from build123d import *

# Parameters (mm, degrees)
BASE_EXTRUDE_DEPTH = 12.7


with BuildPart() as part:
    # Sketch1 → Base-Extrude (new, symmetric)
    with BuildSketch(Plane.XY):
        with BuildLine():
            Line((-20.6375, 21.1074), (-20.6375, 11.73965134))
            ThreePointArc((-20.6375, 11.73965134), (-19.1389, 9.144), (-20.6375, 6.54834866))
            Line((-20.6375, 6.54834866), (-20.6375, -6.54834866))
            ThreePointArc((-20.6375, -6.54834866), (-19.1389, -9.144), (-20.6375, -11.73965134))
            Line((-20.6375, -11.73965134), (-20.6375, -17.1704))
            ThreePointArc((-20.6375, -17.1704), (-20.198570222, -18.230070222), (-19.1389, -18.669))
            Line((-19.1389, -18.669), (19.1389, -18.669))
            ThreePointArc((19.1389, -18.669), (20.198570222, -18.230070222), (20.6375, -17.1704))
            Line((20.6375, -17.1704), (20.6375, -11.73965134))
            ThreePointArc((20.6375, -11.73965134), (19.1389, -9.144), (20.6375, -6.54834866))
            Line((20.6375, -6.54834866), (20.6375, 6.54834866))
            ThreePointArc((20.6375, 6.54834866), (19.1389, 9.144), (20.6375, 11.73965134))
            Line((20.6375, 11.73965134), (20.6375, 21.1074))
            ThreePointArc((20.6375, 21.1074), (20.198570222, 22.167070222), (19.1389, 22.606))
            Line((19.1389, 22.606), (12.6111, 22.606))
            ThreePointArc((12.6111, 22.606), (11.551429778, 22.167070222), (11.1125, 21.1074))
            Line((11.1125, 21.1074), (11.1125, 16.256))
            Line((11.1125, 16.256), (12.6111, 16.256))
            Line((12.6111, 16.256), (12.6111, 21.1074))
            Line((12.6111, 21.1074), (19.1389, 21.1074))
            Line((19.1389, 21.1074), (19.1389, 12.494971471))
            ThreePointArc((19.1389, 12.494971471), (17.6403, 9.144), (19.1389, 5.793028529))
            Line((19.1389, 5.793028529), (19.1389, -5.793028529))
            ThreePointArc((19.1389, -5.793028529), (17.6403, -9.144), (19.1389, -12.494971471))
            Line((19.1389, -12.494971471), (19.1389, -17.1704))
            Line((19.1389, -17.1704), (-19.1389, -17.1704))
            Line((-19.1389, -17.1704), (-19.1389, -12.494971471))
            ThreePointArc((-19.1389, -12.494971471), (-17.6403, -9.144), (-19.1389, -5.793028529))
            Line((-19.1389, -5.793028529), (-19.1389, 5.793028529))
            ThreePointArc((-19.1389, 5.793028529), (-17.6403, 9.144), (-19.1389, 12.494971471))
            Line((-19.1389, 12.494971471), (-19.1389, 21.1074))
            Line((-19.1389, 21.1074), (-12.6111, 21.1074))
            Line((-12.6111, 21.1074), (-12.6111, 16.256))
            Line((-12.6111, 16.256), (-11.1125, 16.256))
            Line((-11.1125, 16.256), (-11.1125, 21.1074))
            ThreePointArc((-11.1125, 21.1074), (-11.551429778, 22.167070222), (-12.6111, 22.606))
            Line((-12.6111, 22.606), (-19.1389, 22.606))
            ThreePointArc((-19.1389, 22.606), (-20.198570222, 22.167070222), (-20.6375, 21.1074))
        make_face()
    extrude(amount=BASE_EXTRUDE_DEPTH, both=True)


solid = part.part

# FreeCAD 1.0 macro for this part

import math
import FreeCAD as App
import Part
import Sketcher
Q = App.Units.Quantity

doc = App.newDocument("Part")
body = doc.addObject("PartDesign::Body", "Body")

sketch1 = body.newObject("Sketcher::SketchObject", "Sketch")
sketch1.AttachmentSupport = (doc.getObject("XY_Plane"), [""])
sketch1.MapMode = "FlatFace"
sketch1.addGeometry([
    Part.LineSegment(App.Vector(-20.6, 21.1, 0), App.Vector(-20.6, 11.7, 0)),
    Part.ArcOfCircle(Part.Circle(App.Vector(-22.1, 9.1, 0), App.Vector(0, 0, 1), 3), math.radians(-60), math.radians(60)),
    Part.LineSegment(App.Vector(-20.6, 6.5, 0), App.Vector(-20.6, -6.5, 0)),
    Part.ArcOfCircle(Part.Circle(App.Vector(-22.1, -9.1, 0), App.Vector(0, 0, 1), 3), math.radians(-60), math.radians(60)),
    Part.LineSegment(App.Vector(-20.6, -11.7, 0), App.Vector(-20.6, -17.2, 0)),
    Part.ArcOfCircle(Part.Circle(App.Vector(-19.1, -17.2, 0), App.Vector(0, 0, 1), 1.5), math.radians(-180), math.radians(-90)),
    Part.LineSegment(App.Vector(-19.1, -18.7, 0), App.Vector(19.1, -18.7, 0)),
    Part.ArcOfCircle(Part.Circle(App.Vector(19.1, -17.2, 0), App.Vector(0, 0, 1), 1.5), math.radians(-90), math.radians(0)),
    Part.LineSegment(App.Vector(20.6, -17.2, 0), App.Vector(20.6, -11.7, 0)),
    Part.ArcOfCircle(Part.Circle(App.Vector(22.1, -9.1, 0), App.Vector(0, 0, 1), 3), math.radians(120), math.radians(240)),
    Part.LineSegment(App.Vector(20.6, -6.5, 0), App.Vector(20.6, 6.5, 0)),
    Part.ArcOfCircle(Part.Circle(App.Vector(22.1, 9.1, 0), App.Vector(0, 0, 1), 3), math.radians(120), math.radians(240)),
    Part.LineSegment(App.Vector(20.6, 11.7, 0), App.Vector(20.6, 21.1, 0)),
    Part.ArcOfCircle(Part.Circle(App.Vector(19.1, 21.1, 0), App.Vector(0, 0, 1), 1.5), math.radians(0), math.radians(90)),
    Part.LineSegment(App.Vector(19.1, 22.6, 0), App.Vector(12.6, 22.6, 0)),
    Part.ArcOfCircle(Part.Circle(App.Vector(12.6, 21.1, 0), App.Vector(0, 0, 1), 1.5), math.radians(90), math.radians(180)),
    Part.LineSegment(App.Vector(11.1, 21.1, 0), App.Vector(11.1, 16.3, 0)),
    Part.LineSegment(App.Vector(11.1, 16.3, 0), App.Vector(12.6, 16.3, 0)),
    Part.LineSegment(App.Vector(12.6, 16.3, 0), App.Vector(12.6, 21.1, 0)),
    Part.LineSegment(App.Vector(12.6, 21.1, 0), App.Vector(19.1, 21.1, 0)),
    Part.LineSegment(App.Vector(19.1, 21.1, 0), App.Vector(19.1, 12.5, 0)),
    Part.ArcOfCircle(Part.Circle(App.Vector(22.1, 9.1, 0), App.Vector(0, 0, 1), 4.5), math.radians(132), math.radians(228)),
    Part.LineSegment(App.Vector(19.1, 5.8, 0), App.Vector(19.1, -5.8, 0)),
    Part.ArcOfCircle(Part.Circle(App.Vector(22.1, -9.1, 0), App.Vector(0, 0, 1), 4.5), math.radians(132), math.radians(228)),
    Part.LineSegment(App.Vector(19.1, -12.5, 0), App.Vector(19.1, -17.2, 0)),
    Part.LineSegment(App.Vector(19.1, -17.2, 0), App.Vector(-19.1, -17.2, 0)),
    Part.LineSegment(App.Vector(-19.1, -17.2, 0), App.Vector(-19.1, -12.5, 0)),
    Part.ArcOfCircle(Part.Circle(App.Vector(-22.1, -9.1, 0), App.Vector(0, 0, 1), 4.5), math.radians(-48), math.radians(48)),
    Part.LineSegment(App.Vector(-19.1, -5.8, 0), App.Vector(-19.1, 5.8, 0)),
    Part.ArcOfCircle(Part.Circle(App.Vector(-22.1, 9.1, 0), App.Vector(0, 0, 1), 4.5), math.radians(-48), math.radians(48)),
    Part.LineSegment(App.Vector(-19.1, 12.5, 0), App.Vector(-19.1, 21.1, 0)),
    Part.LineSegment(App.Vector(-19.1, 21.1, 0), App.Vector(-12.6, 21.1, 0)),
    Part.LineSegment(App.Vector(-12.6, 21.1, 0), App.Vector(-12.6, 16.3, 0)),
    Part.LineSegment(App.Vector(-12.6, 16.3, 0), App.Vector(-11.1, 16.3, 0)),
    Part.LineSegment(App.Vector(-11.1, 16.3, 0), App.Vector(-11.1, 21.1, 0)),
    Part.ArcOfCircle(Part.Circle(App.Vector(-12.6, 21.1, 0), App.Vector(0, 0, 1), 1.5), math.radians(0), math.radians(90)),
    Part.LineSegment(App.Vector(-12.6, 22.6, 0), App.Vector(-19.1, 22.6, 0)),
    Part.ArcOfCircle(Part.Circle(App.Vector(-19.1, 21.1, 0), App.Vector(0, 0, 1), 1.5), math.radians(90), math.radians(180)),
], False)
sketch1.addConstraint([
    Sketcher.Constraint("Coincident", 0, 2, 1, 2),
    Sketcher.Constraint("Coincident", 1, 1, 2, 1),
    Sketcher.Constraint("Coincident", 2, 2, 3, 2),
    Sketcher.Constraint("Coincident", 3, 1, 4, 1),
    Sketcher.Constraint("Tangent", 4, 2, 5, 1),
    Sketcher.Constraint("Tangent", 5, 2, 6, 1),
    Sketcher.Constraint("Tangent", 6, 2, 7, 1),
    Sketcher.Constraint("Tangent", 7, 2, 8, 1),
    Sketcher.Constraint("Coincident", 8, 2, 9, 2),
    Sketcher.Constraint("Coincident", 9, 1, 10, 1),
    Sketcher.Constraint("Coincident", 10, 2, 11, 2),
    Sketcher.Constraint("Coincident", 11, 1, 12, 1),
    Sketcher.Constraint("Tangent", 12, 2, 13, 1),
    Sketcher.Constraint("Tangent", 13, 2, 14, 1),
    Sketcher.Constraint("Tangent", 14, 2, 15, 1),
    Sketcher.Constraint("Tangent", 15, 2, 16, 1),
    Sketcher.Constraint("Coincident", 16, 2, 17, 1),
    Sketcher.Constraint("Coincident", 17, 2, 18, 1),
    Sketcher.Constraint("Coincident", 18, 2, 19, 1),
    Sketcher.Constraint("Coincident", 19, 2, 20, 1),
    Sketcher.Constraint("Coincident", 20, 2, 21, 1),
    Sketcher.Constraint("Coincident", 21, 2, 22, 1),
    Sketcher.Constraint("Coincident", 22, 2, 23, 1),
    Sketcher.Constraint("Coincident", 23, 2, 24, 1),
    Sketcher.Constraint("Coincident", 24, 2, 25, 1),
    Sketcher.Constraint("Coincident", 25, 2, 26, 1),
    Sketcher.Constraint("Coincident", 26, 2, 27, 1),
    Sketcher.Constraint("Coincident", 27, 2, 28, 1),
    Sketcher.Constraint("Coincident", 28, 2, 29, 1),
    Sketcher.Constraint("Coincident", 29, 2, 30, 1),
    Sketcher.Constraint("Coincident", 30, 2, 31, 1),
    Sketcher.Constraint("Coincident", 31, 2, 32, 1),
    Sketcher.Constraint("Coincident", 32, 2, 33, 1),
    Sketcher.Constraint("Coincident", 33, 2, 34, 1),
    Sketcher.Constraint("Tangent", 34, 2, 35, 1),
    Sketcher.Constraint("Tangent", 35, 2, 36, 1),
    Sketcher.Constraint("Tangent", 36, 2, 37, 1),
    Sketcher.Constraint("Tangent", 37, 2, 0, 1),
    Sketcher.Constraint("Vertical", 0),
    Sketcher.Constraint("Vertical", 2),
    Sketcher.Constraint("Vertical", 4),
    Sketcher.Constraint("Horizontal", 6),
    Sketcher.Constraint("Vertical", 8),
    Sketcher.Constraint("Vertical", 10),
    Sketcher.Constraint("Vertical", 12),
    Sketcher.Constraint("Horizontal", 14),
    Sketcher.Constraint("Vertical", 16),
    Sketcher.Constraint("Horizontal", 17),
    Sketcher.Constraint("Vertical", 18),
    Sketcher.Constraint("Horizontal", 19),
    Sketcher.Constraint("Vertical", 20),
    Sketcher.Constraint("Vertical", 22),
    Sketcher.Constraint("Vertical", 24),
    Sketcher.Constraint("Horizontal", 25),
    Sketcher.Constraint("Vertical", 26),
    Sketcher.Constraint("Vertical", 28),
    Sketcher.Constraint("Vertical", 30),
    Sketcher.Constraint("Horizontal", 31),
    Sketcher.Constraint("Vertical", 32),
    Sketcher.Constraint("Horizontal", 33),
    Sketcher.Constraint("Vertical", 34),
    Sketcher.Constraint("Horizontal", 36),
    Sketcher.Constraint("Coincident", 21, 3, 11, 3),
    Sketcher.Constraint("Coincident", 23, 3, 9, 3),
    Sketcher.Constraint("Coincident", 27, 3, 3, 3),
    Sketcher.Constraint("Coincident", 29, 3, 1, 3),
    Sketcher.Constraint("Coincident", 18, 2, 15, 3),
    Sketcher.Constraint("Coincident", 19, 2, 13, 3),
    Sketcher.Constraint("Coincident", 24, 2, 7, 3),
    Sketcher.Constraint("Coincident", 25, 2, 5, 3),
    Sketcher.Constraint("Coincident", 30, 2, 37, 3),
    Sketcher.Constraint("Coincident", 31, 2, 35, 3),
    Sketcher.Constraint("Equal", 1, 3),
    Sketcher.Constraint("Equal", 3, 9),
    Sketcher.Constraint("Equal", 9, 11),
    Sketcher.Constraint("Equal", 7, 13),
    Sketcher.Constraint("Equal", 21, 23),
    Sketcher.Constraint("Equal", 23, 27),
    Sketcher.Constraint("Equal", 27, 29),
    Sketcher.Constraint("Equal", 15, 35),
    Sketcher.Constraint("Symmetric", 1, 3, 9, 3, -1, 1),
    Sketcher.Constraint("Symmetric", 3, 3, 11, 3, -1, 1),
    Sketcher.Constraint("Symmetric", 3, 3, 9, 3, -2),
    Sketcher.Constraint("Symmetric", 15, 3, 35, 3, -2),
    Sketcher.Constraint("Horizontal", 3, 1, 8, 2),
    Sketcher.Constraint("Horizontal", 2, 2, 9, 1),
    Sketcher.Constraint("Horizontal", 0, 2, 11, 1),
    Sketcher.Constraint("Horizontal", 22, 2, 27, 2),
    Sketcher.Constraint("Horizontal", 17, 2, 32, 2),
    Sketcher.Constraint("Vertical", 7, 3, 13, 3),
    Sketcher.Constraint("Vertical", 0, 2, 1, 1),
    Sketcher.Constraint("Vertical", 20, 2, 21, 2),
    Sketcher.Constraint("Radius", 1, Q("0.118 in")),
    Sketcher.Constraint("Radius", 5, Q("0.059 in")),
    Sketcher.Constraint("Radius", 21, Q("0.177 in")),
    Sketcher.Constraint("DistanceX", 6, 1, 6, 2, Q("1.507 in")),
    Sketcher.Constraint("DistanceX", 14, 2, 14, 1, Q("0.257 in")),
    Sketcher.Constraint("DistanceY", 16, 2, 16, 1, Q("0.191 in")),
    Sketcher.Constraint("DistanceY", -1, 1, 1, 3, Q("0.36 in")),
    Sketcher.Constraint("DistanceY", -1, 1, 13, 2, Q("0.89 in")),
    Sketcher.Constraint("DistanceY", 5, 3, -1, 1, Q("0.676 in")),
    Sketcher.Constraint("DistanceX", 3, 3, 5, 3, Q("0.118 in")),
])
pad1 = body.newObject("PartDesign::Pad", "Pad")
pad1.Profile = sketch1
pad1.Length = Q("1 in")
pad1.Midplane = True

doc.recompute()
